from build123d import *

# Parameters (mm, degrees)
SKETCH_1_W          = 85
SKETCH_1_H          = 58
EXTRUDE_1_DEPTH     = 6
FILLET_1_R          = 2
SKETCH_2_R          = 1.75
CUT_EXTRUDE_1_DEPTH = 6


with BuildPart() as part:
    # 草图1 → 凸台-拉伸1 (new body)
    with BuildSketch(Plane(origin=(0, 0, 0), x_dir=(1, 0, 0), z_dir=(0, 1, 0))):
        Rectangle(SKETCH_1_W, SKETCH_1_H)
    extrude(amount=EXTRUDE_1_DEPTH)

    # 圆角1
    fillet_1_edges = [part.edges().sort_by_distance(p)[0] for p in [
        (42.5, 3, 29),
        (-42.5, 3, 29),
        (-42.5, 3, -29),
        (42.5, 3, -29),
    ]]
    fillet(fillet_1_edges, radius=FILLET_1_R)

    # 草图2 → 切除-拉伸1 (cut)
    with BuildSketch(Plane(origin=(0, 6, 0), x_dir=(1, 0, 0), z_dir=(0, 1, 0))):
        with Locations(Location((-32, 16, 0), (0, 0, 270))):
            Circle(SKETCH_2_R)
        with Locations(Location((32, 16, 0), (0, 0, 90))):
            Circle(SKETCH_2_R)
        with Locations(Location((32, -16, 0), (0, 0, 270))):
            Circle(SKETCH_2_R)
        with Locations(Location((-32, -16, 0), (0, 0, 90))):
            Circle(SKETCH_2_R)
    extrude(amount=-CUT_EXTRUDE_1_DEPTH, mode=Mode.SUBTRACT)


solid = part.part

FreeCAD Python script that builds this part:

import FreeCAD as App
import Part
import Sketcher
from FreeCAD import Vector


def edges_at(feature, points):
    """Names of the edges that pass closest to the given points."""
    edges = feature.Shape.Edges
    near = lambda p: min(range(len(edges)), key=lambda i: edges[i].distToShape(Part.Vertex(*p))[0])
    return sorted({f"Edge{near(p) + 1}" for p in points})

doc = App.newDocument("Part")
body = doc.addObject("PartDesign::Body", "Body")

sketch1 = body.newObject("Sketcher::SketchObject", "Sketch")
sketch1.AttachmentSupport = (doc.getObject("XZ_Plane"), [""])
sketch1.MapMode = "FlatFace"
sketch1.addGeometry([
    Part.LineSegment(Vector(-42.5, -29, 0), Vector(-42.5, 29, 0)),
    Part.LineSegment(Vector(-42.5, 29, 0), Vector(42.5, 29, 0)),
    Part.LineSegment(Vector(42.5, 29, 0), Vector(42.5, -29, 0)),
    Part.LineSegment(Vector(42.5, -29, 0), Vector(-42.5, -29, 0)),
], False)
sketch1.addConstraint([
    Sketcher.Constraint("Coincident", 0, 2, 1, 1),
    Sketcher.Constraint("Coincident", 1, 2, 2, 1),
    Sketcher.Constraint("Coincident", 2, 2, 3, 1),
    Sketcher.Constraint("Coincident", 3, 2, 0, 1),
    Sketcher.Constraint("Vertical", 0),
    Sketcher.Constraint("Horizontal", 1),
    Sketcher.Constraint("Vertical", 2),
    Sketcher.Constraint("Horizontal", 3),
    Sketcher.Constraint("Symmetric", 0, 2, 2, 2, -1, 1),
    Sketcher.Constraint("DistanceX", 1, 1, 1, 2, 85.0),
    Sketcher.Constraint("DistanceY", 0, 1, 0, 2, 58.0),
])
pad1 = body.newObject("PartDesign::Pad", "Pad")
pad1.Profile = sketch1
pad1.Length = 6
pad1.Reversed = True
doc.recompute()

fillet = body.newObject("PartDesign::Fillet", "Fillet")
fillet.Base = (pad1, edges_at(pad1, [
    (42.5, 3, 29),
    (-42.5, 3, 29),
    (-42.5, 3, -29),
    (42.5, 3, -29),
]))
fillet.Radius = 2

sketch2 = body.newObject("Sketcher::SketchObject", "Sketch001")
sketch2.AttachmentSupport = (doc.getObject("XZ_Plane"), [""])
sketch2.MapMode = "FlatFace"
sketch2.AttachmentOffset = App.Placement(Vector(0, 0, -6), App.Rotation())
sketch2.addGeometry([
    Part.Circle(Vector(-32, -16, 0), Vector(0, 0, 1), 1.75),
    Part.Circle(Vector(32, -16, 0), Vector(0, 0, 1), 1.75),
    Part.Circle(Vector(32, 16, 0), Vector(0, 0, 1), 1.75),
    Part.Circle(Vector(-32, 16, 0), Vector(0, 0, 1), 1.75),
], False)
sketch2.addConstraint([
    Sketcher.Constraint("Equal", 0, 1),
    Sketcher.Constraint("Equal", 1, 2),
    Sketcher.Constraint("Equal", 2, 3),
    Sketcher.Constraint("Symmetric", 0, 3, 2, 3, -1, 1),
    Sketcher.Constraint("Symmetric", 1, 3, 3, 3, -1, 1),
    Sketcher.Constraint("Symmetric", 0, 3, 1, 3, -2),
    Sketcher.Constraint("Diameter", 0, 3.5),
    Sketcher.Constraint("DistanceX", 0, 3, -1, 1, 32.0),
    Sketcher.Constraint("DistanceY", 0, 3, -1, 1, 16.0),
])
pocket1 = body.newObject("PartDesign::Pocket", "Pocket")
pocket1.Profile = sketch2
pocket1.Length = 6
pocket1.Reversed = True

doc.recompute()
